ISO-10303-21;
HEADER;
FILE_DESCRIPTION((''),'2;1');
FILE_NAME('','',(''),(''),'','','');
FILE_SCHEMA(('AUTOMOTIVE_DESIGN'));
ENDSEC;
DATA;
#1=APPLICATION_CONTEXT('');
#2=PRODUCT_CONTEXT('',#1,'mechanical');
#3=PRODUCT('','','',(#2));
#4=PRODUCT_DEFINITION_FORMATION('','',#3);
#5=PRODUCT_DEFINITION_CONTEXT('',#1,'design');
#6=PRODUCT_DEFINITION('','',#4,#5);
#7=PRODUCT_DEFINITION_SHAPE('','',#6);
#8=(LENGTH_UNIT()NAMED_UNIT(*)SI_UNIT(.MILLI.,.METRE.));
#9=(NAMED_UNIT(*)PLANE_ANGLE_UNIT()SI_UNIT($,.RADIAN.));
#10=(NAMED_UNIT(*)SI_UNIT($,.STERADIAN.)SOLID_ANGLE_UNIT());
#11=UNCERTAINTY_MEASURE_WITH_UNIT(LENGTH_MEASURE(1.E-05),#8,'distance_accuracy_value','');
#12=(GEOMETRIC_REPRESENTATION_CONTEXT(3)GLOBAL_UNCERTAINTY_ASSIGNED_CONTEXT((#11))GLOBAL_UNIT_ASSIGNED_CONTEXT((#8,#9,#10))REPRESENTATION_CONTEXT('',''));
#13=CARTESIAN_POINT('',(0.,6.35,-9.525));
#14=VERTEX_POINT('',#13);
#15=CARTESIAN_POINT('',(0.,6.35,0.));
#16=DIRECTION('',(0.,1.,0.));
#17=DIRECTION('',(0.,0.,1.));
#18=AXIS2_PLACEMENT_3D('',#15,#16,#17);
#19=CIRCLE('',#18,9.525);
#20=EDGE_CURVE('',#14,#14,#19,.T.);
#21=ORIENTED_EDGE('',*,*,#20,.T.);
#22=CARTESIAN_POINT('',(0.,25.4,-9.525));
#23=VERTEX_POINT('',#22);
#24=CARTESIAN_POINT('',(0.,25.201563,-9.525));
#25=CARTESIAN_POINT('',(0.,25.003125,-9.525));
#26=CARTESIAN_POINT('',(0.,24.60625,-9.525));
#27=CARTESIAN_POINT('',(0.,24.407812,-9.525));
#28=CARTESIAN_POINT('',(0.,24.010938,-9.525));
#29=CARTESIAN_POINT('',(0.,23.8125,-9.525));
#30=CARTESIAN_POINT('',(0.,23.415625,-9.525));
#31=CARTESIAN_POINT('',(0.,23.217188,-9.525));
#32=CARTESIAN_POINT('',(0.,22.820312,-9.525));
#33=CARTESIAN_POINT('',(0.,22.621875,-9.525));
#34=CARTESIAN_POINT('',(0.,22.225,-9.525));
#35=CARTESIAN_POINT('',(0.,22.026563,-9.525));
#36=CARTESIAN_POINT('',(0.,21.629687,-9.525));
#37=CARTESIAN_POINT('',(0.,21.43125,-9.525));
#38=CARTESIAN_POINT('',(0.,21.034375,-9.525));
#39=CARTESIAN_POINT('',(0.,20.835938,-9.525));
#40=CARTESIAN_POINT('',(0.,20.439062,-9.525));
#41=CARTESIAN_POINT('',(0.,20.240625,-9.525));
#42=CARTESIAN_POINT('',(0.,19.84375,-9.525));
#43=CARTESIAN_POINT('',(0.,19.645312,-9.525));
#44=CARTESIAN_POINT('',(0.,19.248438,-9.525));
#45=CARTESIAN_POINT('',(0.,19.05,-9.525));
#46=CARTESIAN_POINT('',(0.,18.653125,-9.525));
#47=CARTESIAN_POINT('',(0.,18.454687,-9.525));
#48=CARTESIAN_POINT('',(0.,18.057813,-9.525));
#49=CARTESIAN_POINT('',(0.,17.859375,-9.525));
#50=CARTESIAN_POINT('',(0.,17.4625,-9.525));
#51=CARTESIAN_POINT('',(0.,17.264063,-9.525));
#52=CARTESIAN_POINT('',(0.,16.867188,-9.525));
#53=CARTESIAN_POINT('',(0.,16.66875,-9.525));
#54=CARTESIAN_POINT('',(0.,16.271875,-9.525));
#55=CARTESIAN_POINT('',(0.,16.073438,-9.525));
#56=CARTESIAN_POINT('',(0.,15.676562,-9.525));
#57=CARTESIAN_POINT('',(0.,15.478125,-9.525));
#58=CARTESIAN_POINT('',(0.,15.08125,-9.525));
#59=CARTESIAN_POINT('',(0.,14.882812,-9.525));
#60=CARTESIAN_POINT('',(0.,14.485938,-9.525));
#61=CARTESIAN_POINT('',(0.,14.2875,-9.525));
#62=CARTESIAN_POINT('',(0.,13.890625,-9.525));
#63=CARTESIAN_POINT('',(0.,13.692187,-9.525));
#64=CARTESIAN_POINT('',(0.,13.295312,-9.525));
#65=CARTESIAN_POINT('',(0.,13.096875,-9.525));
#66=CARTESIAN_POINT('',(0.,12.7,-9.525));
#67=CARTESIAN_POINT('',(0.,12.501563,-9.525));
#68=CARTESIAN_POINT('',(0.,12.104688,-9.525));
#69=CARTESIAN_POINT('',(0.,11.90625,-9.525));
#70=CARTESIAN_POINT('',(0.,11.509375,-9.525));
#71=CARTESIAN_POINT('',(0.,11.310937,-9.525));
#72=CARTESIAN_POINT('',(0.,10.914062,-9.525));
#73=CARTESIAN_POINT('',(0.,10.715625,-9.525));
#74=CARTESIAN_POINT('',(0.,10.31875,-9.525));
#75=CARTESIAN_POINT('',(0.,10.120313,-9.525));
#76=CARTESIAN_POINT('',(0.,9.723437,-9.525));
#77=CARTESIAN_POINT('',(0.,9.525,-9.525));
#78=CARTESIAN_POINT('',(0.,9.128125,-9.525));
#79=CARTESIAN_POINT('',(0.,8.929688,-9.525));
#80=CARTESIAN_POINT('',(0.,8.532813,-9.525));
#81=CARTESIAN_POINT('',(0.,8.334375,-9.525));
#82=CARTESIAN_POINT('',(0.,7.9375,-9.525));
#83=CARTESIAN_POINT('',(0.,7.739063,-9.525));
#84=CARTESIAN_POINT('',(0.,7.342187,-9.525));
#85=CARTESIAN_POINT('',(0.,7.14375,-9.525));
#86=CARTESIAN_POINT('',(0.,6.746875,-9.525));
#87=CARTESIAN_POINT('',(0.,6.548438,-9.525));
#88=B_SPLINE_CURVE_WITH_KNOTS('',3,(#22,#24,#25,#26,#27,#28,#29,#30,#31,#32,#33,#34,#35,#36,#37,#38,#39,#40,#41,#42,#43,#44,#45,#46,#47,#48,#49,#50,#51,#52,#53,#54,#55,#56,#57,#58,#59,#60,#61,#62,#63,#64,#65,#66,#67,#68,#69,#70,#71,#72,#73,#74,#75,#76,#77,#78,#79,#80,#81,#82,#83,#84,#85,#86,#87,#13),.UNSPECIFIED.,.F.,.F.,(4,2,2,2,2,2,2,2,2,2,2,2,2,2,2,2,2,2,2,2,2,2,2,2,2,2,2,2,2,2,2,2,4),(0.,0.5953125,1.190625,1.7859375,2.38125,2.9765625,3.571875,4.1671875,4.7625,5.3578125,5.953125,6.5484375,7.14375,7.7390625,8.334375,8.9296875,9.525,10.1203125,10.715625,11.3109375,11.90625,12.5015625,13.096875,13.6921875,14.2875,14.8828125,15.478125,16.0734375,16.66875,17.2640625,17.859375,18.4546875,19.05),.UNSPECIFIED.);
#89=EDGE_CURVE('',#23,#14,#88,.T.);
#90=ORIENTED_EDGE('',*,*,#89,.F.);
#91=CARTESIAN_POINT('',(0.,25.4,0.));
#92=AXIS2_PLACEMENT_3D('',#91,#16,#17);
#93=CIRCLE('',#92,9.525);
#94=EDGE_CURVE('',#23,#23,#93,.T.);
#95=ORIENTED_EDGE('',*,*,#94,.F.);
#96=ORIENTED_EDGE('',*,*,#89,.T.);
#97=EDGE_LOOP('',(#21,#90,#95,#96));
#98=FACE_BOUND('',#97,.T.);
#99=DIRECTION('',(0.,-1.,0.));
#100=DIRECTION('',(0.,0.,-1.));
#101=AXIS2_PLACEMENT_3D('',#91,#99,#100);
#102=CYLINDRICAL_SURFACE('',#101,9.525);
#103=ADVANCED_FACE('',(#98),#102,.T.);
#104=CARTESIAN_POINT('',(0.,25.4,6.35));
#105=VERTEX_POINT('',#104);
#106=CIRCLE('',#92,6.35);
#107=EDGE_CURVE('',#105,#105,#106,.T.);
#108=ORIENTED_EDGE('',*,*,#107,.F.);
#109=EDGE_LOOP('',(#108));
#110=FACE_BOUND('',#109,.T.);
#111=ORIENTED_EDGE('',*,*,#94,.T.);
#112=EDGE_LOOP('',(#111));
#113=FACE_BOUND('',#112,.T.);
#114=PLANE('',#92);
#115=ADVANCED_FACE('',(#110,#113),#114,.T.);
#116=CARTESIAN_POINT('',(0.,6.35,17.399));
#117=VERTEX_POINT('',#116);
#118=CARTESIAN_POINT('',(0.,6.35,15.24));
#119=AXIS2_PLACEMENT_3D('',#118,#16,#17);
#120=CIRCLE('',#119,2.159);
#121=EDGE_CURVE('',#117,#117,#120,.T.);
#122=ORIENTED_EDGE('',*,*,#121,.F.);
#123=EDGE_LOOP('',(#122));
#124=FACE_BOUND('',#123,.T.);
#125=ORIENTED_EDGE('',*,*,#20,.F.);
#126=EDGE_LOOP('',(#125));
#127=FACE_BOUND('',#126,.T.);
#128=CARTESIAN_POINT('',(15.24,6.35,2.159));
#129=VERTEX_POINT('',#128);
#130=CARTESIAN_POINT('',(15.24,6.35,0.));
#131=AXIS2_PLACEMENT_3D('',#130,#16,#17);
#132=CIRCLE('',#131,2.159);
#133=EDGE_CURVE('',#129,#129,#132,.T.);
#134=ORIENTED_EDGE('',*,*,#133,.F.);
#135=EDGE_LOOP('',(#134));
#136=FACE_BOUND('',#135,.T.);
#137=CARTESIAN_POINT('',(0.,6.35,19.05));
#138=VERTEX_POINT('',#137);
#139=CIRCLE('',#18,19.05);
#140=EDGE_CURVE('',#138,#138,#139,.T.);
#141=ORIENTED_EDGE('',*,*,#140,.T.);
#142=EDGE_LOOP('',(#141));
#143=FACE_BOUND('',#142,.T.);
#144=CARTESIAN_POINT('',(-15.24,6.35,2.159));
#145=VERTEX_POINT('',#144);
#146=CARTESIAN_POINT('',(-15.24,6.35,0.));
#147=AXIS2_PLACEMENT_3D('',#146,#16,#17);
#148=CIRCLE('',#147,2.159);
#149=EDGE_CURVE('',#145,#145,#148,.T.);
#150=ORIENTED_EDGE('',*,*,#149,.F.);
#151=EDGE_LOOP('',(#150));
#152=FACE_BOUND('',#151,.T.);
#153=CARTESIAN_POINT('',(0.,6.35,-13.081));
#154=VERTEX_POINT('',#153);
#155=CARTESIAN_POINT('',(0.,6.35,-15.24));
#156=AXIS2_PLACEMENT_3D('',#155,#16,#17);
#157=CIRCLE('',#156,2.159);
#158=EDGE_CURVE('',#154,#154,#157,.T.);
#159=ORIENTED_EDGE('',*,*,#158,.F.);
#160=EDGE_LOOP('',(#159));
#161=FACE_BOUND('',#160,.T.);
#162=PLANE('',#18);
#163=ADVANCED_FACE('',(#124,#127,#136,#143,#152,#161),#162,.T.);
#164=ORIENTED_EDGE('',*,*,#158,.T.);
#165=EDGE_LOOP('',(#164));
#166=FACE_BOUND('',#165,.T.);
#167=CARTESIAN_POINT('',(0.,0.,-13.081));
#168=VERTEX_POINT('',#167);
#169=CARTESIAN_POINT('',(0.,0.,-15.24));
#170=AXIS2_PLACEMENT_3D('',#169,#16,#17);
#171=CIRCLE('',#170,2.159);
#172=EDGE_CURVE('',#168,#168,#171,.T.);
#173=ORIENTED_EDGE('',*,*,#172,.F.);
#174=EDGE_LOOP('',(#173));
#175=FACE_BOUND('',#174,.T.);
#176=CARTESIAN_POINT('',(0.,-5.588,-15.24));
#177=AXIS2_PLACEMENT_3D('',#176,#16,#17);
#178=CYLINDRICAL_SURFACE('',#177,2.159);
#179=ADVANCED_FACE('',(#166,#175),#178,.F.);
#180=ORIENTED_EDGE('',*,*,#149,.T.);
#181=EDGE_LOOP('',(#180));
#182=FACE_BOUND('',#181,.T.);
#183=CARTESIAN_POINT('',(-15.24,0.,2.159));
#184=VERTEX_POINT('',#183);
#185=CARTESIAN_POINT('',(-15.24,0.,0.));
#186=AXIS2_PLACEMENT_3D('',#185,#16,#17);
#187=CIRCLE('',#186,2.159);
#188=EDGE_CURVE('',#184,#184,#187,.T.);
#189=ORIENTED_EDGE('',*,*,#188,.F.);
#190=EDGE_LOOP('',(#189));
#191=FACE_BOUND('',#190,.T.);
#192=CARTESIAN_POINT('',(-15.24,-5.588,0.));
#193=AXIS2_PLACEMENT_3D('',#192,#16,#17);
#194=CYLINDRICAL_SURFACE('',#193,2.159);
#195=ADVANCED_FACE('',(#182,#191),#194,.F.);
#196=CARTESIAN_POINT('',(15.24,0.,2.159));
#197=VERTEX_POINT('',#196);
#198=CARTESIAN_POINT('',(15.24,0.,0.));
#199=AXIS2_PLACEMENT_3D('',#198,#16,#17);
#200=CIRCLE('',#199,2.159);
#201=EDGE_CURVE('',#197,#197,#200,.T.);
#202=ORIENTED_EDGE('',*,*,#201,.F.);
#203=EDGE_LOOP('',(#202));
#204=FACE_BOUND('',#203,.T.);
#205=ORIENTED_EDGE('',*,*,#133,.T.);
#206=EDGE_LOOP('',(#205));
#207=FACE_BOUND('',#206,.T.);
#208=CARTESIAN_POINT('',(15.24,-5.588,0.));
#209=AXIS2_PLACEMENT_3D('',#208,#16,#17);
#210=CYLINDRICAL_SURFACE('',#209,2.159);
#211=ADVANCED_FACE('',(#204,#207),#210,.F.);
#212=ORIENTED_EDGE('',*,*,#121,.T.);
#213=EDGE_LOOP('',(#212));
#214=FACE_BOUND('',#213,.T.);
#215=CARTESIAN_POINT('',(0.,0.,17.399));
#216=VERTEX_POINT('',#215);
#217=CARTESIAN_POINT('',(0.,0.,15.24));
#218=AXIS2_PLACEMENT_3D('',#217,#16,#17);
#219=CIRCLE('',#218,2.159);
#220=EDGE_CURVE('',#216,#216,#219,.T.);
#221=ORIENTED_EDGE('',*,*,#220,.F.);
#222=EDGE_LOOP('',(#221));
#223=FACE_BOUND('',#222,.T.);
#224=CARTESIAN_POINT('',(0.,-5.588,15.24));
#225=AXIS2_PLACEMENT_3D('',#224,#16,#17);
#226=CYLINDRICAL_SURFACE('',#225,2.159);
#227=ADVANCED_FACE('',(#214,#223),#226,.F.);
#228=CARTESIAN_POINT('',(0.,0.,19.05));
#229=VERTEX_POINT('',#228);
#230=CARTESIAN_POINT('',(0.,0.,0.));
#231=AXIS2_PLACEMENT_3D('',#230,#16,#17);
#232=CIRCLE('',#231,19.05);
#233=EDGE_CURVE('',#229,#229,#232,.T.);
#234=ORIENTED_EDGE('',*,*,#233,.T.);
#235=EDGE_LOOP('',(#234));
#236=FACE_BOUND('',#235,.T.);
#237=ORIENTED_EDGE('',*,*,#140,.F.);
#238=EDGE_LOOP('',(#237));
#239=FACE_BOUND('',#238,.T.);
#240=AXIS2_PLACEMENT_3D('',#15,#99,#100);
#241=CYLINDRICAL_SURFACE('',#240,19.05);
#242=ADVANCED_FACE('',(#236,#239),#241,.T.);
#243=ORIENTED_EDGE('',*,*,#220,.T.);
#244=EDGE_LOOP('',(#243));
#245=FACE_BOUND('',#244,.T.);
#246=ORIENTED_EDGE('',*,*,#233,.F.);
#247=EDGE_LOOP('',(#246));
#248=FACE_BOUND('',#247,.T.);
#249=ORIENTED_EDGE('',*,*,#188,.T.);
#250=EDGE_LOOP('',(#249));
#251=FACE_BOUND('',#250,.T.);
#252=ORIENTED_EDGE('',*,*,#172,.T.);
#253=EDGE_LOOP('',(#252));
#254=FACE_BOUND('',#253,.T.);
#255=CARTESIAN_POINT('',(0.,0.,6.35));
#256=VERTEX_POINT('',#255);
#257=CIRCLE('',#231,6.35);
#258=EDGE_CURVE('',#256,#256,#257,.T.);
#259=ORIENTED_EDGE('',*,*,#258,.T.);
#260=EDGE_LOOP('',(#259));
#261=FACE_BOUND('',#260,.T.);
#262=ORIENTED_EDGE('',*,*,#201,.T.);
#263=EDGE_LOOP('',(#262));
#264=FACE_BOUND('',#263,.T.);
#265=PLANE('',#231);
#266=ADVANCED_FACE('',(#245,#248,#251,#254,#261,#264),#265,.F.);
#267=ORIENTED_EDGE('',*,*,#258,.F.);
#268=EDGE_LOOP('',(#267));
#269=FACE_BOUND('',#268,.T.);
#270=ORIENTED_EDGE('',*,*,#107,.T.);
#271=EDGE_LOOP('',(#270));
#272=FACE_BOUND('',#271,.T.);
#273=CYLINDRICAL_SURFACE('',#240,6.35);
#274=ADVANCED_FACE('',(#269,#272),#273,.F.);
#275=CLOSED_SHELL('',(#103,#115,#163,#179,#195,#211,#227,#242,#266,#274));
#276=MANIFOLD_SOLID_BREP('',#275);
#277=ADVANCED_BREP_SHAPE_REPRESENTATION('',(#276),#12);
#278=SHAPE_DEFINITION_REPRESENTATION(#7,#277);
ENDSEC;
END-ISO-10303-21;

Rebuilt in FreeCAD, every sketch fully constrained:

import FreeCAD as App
import Part
import Sketcher
Q = App.Units.Quantity

doc = App.newDocument("Part")
params = doc.addObject("Spreadsheet::Sheet", "Params")
for row, (alias, value) in enumerate([
    ("sketch1_diameter", "1.5 in"),
    ("sketch1_diameter2", "0.5 in"),
    ("pad1_length", "0.25 in"),
    ("sketch2_diameter", "0.5 in"),
    ("sketch2_diameter2", "0.75 in"),
    ("pad2_length", "0.75 in"),
    ("sketch3_diameter", "0.17 in"),
    ("pocket1_length", "0.47 in"),
], start=1):
    params.set(f"A{row}", alias)
    params.set(f"B{row}", "=" + value)
    params.setAlias(f"B{row}", alias)

body = doc.addObject("PartDesign::Body", "Body")

# Sketch on XZ plane
sketch1 = body.newObject("Sketcher::SketchObject", "Sketch")
sketch1.AttachmentSupport = (doc.getObject("XZ_Plane"), [""])
sketch1.MapMode = "FlatFace"
sketch1.addGeometry(Part.Circle(App.Vector(0, 0, 0), App.Vector(0, 0, 1), 19.05), False)
sketch1.addGeometry(Part.Circle(App.Vector(0, 0, 0), App.Vector(0, 0, 1), 6.35), False)
sketch1.addConstraint(Sketcher.Constraint("Coincident", 0, 3, -1, 1))
sketch1.addConstraint(Sketcher.Constraint("Coincident", 1, 3, -1, 1))
sketch1.addConstraint(Sketcher.Constraint("Diameter", 0, Q("1.5 in")))
sketch1.addConstraint(Sketcher.Constraint("Diameter", 1, Q("0.5 in")))
sketch1.setExpression("Constraints[2]", "Params.sketch1_diameter")
sketch1.setExpression("Constraints[3]", "Params.sketch1_diameter2")
pad1 = body.newObject("PartDesign::Pad", "Pad")
pad1.Profile = sketch1
pad1.setExpression("Length", "Params.pad1_length")
pad1.Reversed = True

# Sketch on XZ plane
sketch2 = body.newObject("Sketcher::SketchObject", "Sketch001")
sketch2.AttachmentSupport = (doc.getObject("XZ_Plane"), [""])
sketch2.MapMode = "FlatFace"
sketch2.AttachmentOffset = App.Placement(App.Vector(0, 0, -0.25 * 25.4), App.Rotation())
sketch2.addGeometry(Part.Circle(App.Vector(0, 0, 0), App.Vector(0, 0, 1), 9.525), False)
sketch2.addGeometry(Part.Circle(App.Vector(0, 0, 0), App.Vector(0, 0, 1), 6.35), False)
sketch2.addConstraint(Sketcher.Constraint("Coincident", 0, 3, -1, 1))
sketch2.addConstraint(Sketcher.Constraint("Coincident", 1, 3, -1, 1))
sketch2.addConstraint(Sketcher.Constraint("Diameter", 1, Q("0.5 in")))
sketch2.addConstraint(Sketcher.Constraint("Diameter", 0, Q("0.75 in")))
sketch2.setExpression("Constraints[2]", "Params.sketch2_diameter")
sketch2.setExpression("Constraints[3]", "Params.sketch2_diameter2")
pad2 = body.newObject("PartDesign::Pad", "Pad001")
pad2.Profile = sketch2
pad2.setExpression("Length", "Params.pad2_length")
pad2.Reversed = True

# Sketch on XZ plane
sketch3 = body.newObject("Sketcher::SketchObject", "Sketch002")
sketch3.AttachmentSupport = (doc.getObject("XZ_Plane"), [""])
sketch3.MapMode = "FlatFace"
sketch3.AttachmentOffset = App.Placement(App.Vector(0, 0, -0.25 * 25.4), App.Rotation())
sketch3.addGeometry(Part.Circle(App.Vector(0, -15.24, 0), App.Vector(0, 0, 1), 2.159), False)
sketch3.addGeometry(Part.Circle(App.Vector(15.24, 0, 0), App.Vector(0, 0, 1), 2.159), False)
sketch3.addGeometry(Part.Circle(App.Vector(0, 15.24, 0), App.Vector(0, 0, 1), 2.159), False)
sketch3.addGeometry(Part.Circle(App.Vector(-15.24, 0, 0), App.Vector(0, 0, 1), 2.159), False)
sketch3.addConstraint(Sketcher.Constraint("Equal", 0, 1))
sketch3.addConstraint(Sketcher.Constraint("Equal", 1, 2))
sketch3.addConstraint(Sketcher.Constraint("Equal", 2, 3))
sketch3.addConstraint(Sketcher.Constraint("Symmetric", 0, 3, 2, 3, -1, 1))
sketch3.addConstraint(Sketcher.Constraint("Symmetric", 1, 3, 3, 3, -1, 1))
sketch3.addConstraint(Sketcher.Constraint("PointOnObject", 0, 3, -2))
sketch3.addConstraint(Sketcher.Constraint("PointOnObject", 1, 3, -1))
sketch3.addConstraint(Sketcher.Constraint("Diameter", 0, Q("0.17 in")))
sketch3.addConstraint(Sketcher.Constraint("DistanceY", 0, 3, -1, 1, Q("0.6 in")))
sketch3.addConstraint(Sketcher.Constraint("DistanceX", -1, 1, 1, 3, Q("0.6 in")))
sketch3.setExpression("Constraints[7]", "Params.sketch3_diameter")
pocket1 = body.newObject("PartDesign::Pocket", "Pocket")
pocket1.Profile = sketch3
pocket1.setExpression("Length", "Params.pocket1_length")
pocket1.Reversed = True

doc.recompute()
